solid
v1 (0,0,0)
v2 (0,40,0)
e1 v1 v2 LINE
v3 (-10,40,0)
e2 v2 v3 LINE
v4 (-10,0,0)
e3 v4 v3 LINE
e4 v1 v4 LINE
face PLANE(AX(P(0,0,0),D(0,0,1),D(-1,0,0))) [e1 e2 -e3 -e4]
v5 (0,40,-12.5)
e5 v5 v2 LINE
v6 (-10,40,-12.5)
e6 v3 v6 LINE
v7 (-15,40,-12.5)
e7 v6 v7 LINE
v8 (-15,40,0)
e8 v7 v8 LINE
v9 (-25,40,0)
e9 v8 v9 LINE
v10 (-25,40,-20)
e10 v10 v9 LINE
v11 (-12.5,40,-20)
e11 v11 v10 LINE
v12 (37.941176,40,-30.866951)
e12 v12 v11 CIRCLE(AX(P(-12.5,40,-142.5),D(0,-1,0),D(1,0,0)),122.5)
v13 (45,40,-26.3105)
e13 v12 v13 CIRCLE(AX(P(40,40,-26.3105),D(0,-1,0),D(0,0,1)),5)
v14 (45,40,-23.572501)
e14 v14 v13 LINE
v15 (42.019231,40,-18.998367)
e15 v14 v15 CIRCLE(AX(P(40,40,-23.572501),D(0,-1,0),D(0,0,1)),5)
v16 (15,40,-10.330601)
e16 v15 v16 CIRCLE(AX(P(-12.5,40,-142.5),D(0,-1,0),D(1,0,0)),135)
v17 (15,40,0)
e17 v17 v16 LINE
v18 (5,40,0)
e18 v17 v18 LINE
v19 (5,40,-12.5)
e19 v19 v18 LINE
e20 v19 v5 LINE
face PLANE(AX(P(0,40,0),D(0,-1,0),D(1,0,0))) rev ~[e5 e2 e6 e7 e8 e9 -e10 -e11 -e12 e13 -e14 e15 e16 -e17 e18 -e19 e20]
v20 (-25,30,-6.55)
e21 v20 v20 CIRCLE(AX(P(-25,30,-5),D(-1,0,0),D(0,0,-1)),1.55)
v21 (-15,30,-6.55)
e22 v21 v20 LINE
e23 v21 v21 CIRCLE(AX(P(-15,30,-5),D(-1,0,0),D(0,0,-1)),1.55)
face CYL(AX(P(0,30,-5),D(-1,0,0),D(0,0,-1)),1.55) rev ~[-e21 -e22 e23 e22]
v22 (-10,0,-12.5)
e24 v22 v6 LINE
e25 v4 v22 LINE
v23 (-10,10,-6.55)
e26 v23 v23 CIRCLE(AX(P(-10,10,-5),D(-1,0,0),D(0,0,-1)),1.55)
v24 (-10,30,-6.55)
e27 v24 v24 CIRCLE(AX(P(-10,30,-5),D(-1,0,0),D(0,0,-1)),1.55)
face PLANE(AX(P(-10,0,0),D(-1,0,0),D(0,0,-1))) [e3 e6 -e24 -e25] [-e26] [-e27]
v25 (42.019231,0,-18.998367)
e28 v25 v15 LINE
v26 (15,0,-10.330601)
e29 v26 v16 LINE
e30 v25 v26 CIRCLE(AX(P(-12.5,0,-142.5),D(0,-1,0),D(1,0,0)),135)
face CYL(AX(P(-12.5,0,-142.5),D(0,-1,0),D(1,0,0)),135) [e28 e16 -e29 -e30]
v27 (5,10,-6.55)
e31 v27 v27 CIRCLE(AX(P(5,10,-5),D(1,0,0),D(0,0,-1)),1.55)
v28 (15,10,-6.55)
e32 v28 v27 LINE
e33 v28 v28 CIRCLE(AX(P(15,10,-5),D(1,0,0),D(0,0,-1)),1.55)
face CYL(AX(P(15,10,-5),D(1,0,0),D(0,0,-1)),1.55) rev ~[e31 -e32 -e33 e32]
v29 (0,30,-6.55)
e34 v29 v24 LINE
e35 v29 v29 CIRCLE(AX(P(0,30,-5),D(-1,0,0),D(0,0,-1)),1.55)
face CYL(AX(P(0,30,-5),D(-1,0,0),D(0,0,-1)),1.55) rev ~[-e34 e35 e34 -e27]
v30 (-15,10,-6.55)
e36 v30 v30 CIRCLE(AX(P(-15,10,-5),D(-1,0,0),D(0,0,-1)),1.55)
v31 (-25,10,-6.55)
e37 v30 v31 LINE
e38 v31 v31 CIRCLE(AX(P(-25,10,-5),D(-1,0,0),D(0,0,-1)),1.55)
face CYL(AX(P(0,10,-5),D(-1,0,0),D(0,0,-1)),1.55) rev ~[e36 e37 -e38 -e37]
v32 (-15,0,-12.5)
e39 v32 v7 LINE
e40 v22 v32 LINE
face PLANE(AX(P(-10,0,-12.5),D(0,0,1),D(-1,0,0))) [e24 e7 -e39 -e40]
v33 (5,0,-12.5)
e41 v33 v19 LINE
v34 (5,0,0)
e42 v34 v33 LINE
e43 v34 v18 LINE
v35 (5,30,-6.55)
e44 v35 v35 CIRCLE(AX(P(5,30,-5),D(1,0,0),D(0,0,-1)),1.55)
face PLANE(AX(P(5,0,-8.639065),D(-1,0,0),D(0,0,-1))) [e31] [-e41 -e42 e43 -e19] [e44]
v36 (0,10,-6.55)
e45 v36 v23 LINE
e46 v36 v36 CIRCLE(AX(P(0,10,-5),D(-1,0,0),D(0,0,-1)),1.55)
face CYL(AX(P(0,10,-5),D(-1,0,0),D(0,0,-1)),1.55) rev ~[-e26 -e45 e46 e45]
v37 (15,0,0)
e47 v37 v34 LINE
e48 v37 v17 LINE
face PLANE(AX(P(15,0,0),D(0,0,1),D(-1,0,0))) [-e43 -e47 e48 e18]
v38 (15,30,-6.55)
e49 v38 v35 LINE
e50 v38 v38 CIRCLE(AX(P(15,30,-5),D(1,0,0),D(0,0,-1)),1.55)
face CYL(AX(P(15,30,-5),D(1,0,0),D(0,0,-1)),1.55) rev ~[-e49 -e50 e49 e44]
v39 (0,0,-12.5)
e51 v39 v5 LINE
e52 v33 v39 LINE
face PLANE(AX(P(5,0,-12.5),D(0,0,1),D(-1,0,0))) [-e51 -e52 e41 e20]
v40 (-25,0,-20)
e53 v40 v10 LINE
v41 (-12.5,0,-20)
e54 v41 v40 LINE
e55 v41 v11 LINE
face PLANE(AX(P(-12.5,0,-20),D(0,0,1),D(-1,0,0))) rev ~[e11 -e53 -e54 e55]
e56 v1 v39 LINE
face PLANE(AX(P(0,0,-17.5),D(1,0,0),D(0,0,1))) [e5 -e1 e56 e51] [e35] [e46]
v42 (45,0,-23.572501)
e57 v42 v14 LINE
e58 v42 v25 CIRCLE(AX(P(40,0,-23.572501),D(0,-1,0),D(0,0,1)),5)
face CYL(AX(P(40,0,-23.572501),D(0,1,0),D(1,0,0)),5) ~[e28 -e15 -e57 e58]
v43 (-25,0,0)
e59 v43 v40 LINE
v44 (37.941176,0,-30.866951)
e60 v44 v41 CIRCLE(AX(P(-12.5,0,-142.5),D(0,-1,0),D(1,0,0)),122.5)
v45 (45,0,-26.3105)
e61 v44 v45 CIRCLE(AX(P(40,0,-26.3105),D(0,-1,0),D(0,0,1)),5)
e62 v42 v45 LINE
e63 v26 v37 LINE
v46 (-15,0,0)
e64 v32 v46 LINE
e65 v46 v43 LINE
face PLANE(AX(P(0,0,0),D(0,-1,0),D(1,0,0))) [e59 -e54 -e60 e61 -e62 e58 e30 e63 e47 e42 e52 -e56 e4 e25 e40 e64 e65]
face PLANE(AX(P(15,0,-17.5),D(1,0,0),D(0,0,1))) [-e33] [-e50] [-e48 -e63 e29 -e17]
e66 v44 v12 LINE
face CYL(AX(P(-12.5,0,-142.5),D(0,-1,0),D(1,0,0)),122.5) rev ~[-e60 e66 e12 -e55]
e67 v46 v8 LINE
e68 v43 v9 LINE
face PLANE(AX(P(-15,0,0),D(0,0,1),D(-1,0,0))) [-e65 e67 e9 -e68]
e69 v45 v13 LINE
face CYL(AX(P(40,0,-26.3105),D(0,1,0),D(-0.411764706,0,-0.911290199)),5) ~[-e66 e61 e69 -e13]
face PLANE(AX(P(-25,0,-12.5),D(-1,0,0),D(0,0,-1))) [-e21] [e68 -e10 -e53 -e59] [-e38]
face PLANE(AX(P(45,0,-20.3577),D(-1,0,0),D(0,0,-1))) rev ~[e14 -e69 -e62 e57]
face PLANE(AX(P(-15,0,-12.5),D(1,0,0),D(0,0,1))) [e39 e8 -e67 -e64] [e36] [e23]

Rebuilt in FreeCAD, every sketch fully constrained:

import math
import FreeCAD as App
import Part
import Sketcher
from FreeCAD import Vector


def edges_at(feature, points):
    """Names of the edges that pass closest to the given points."""
    edges = feature.Shape.Edges
    near = lambda p: min(range(len(edges)), key=lambda i: edges[i].distToShape(Part.Vertex(*p))[0])
    return sorted({f"Edge{near(p) + 1}" for p in points})

doc = App.newDocument("Part")
params = doc.addObject("Spreadsheet::Sheet", "Params")
for row, (alias, value) in enumerate([
    ("sketch1_width", "10 mm"),
    ("sketch1_height", "12.5 mm"),
    ("pad1_length", "40 mm"),
    ("sketch2_diameter", "3.1 mm"),
    ("hole_diameter", "3.1 mm"),
    ("sketch3_height", "5 mm"),
    ("sketch3_width", "25 mm"),
    ("pad2_length", "40 mm"),
    ("sketch4_width", "10 mm"),
    ("sketch4_width2", "5 mm"),
    ("sketch4_height", "17.5 mm"),
    ("pad3_length", "40 mm"),
    ("sketch5_radius", "135 mm"),
    ("sketch5_radius2", "122.5 mm"),
    ("sketch5_width", "40 mm"),
    ("sketch5_width2", "12.5 mm"),
    ("sketch5_height", "2.5 mm"),
    ("pad4_length", "40 mm"),
    ("sketch6_diameter", "3.1 mm"),
    ("pocket1_length", "40 mm"),
    ("fillet_radius", "5 mm"),
    ("fillet2_radius", "5 mm"),
], start=1):
    params.set(f"A{row}", alias)
    params.set(f"B{row}", "=" + value)
    params.setAlias(f"B{row}", alias)

body = doc.addObject("PartDesign::Body", "Body")
body.AllowCompound = True

# Sketch on XZ plane
sketch1 = body.newObject("Sketcher::SketchObject", "Sketch")
sketch1.AttachmentSupport = (doc.getObject("XZ_Plane"), [""])
sketch1.MapMode = "FlatFace"
sketch1.addGeometry([
    Part.LineSegment(Vector(-10, 0, 0), Vector(0, 0, 0)),  # 0
    Part.LineSegment(Vector(0, 0, 0), Vector(0, -12, 0)),  # 1
    Part.LineSegment(Vector(0, -12, 0), Vector(-10, -12, 0)),  # 2
    Part.LineSegment(Vector(-10, -12, 0), Vector(-10, 0, 0)),  # 3
    Part.LineSegment(Vector(-25, 0, 0), Vector(-15, 0, 0)),  # 4
    Part.LineSegment(Vector(-15, 0, 0), Vector(-15, -12, 0)),  # 5
    Part.LineSegment(Vector(-15, -12, 0), Vector(-25, -12, 0)),  # 6
    Part.LineSegment(Vector(-25, -12, 0), Vector(-25, 0, 0)),  # 7
], False)
sketch1.addConstraint([
    Sketcher.Constraint("Coincident", 0, 2, 1, 1),
    Sketcher.Constraint("Coincident", 1, 2, 2, 1),
    Sketcher.Constraint("Coincident", 2, 2, 3, 1),
    Sketcher.Constraint("Coincident", 3, 2, 0, 1),
    Sketcher.Constraint("Coincident", 4, 2, 5, 1),
    Sketcher.Constraint("Coincident", 5, 2, 6, 1),
    Sketcher.Constraint("Coincident", 6, 2, 7, 1),
    Sketcher.Constraint("Coincident", 7, 2, 4, 1),
    Sketcher.Constraint("Horizontal", 0),
    Sketcher.Constraint("Vertical", 1),
    Sketcher.Constraint("Horizontal", 2),
    Sketcher.Constraint("Vertical", 3),
    Sketcher.Constraint("Horizontal", 4),
    Sketcher.Constraint("Vertical", 5),
    Sketcher.Constraint("Horizontal", 6),
    Sketcher.Constraint("Vertical", 7),
    Sketcher.Constraint("Coincident", 0, 2, -1, 1),
    Sketcher.Constraint("PointOnObject", 4, 2, -1),
    Sketcher.Constraint("Horizontal", 2, 2, 5, 2),
    Sketcher.Constraint("Equal", 2, 4),
    Sketcher.Constraint("DistanceX", 0, 1, 0, 2, 10.0),
    Sketcher.Constraint("DistanceY", 1, 2, 1, 1, 12.5),
    Sketcher.Constraint("DistanceX", 6, 2, -1, 1, 25.0),
])
sketch1.setExpression("Constraints[20]", "Params.sketch1_width")
sketch1.setExpression("Constraints[21]", "Params.sketch1_height")
pad1 = body.newObject("PartDesign::Pad", "Pad")
pad1.Profile = sketch1
pad1.setExpression("Length", "Params.pad1_length")
pad1.Reversed = True

# Sketch on YZ plane
sketch2 = body.newObject("Sketcher::SketchObject", "Sketch001")
sketch2.AttachmentSupport = (doc.getObject("YZ_Plane"), [""])
sketch2.MapMode = "FlatFace"
sketch2.addGeometry([
    Part.Circle(Vector(30, -5, 0), Vector(0, 0, 1), 1.6),
    Part.Circle(Vector(10, -5, 0), Vector(0, 0, 1), 1.6),
], False)
sketch2.addConstraint([
    Sketcher.Constraint("Equal", 0, 1),
    Sketcher.Constraint("Horizontal", 0, 3, 1, 3),
    Sketcher.Constraint("Diameter", 0, 3.1),
    Sketcher.Constraint("DistanceX", -1, 1, 0, 3, 30.0),
    Sketcher.Constraint("DistanceY", 0, 3, -1, 1, 5.0),
    Sketcher.Constraint("DistanceX", -1, 1, 1, 3, 10.0),
])
sketch2.setExpression("Constraints[2]", "Params.sketch2_diameter")
doc.recompute()
hole = body.newObject("PartDesign::Hole", "Hole")
hole.Profile = sketch2
hole.ThreadType = "None"
hole.setExpression("Diameter", "Params.hole_diameter")
hole.DepthType = "ThroughAll"

# Sketch on XZ plane
sketch3 = body.newObject("Sketcher::SketchObject", "Sketch002")
sketch3.AttachmentSupport = (doc.getObject("XZ_Plane"), [""])
sketch3.MapMode = "FlatFace"
sketch3.addGeometry([
    Part.LineSegment(Vector(0, -18, 0), Vector(0, -12, 0)),
    Part.LineSegment(Vector(0, -12, 0), Vector(-25, -12, 0)),
    Part.LineSegment(Vector(-25, -12, 0), Vector(-25, -18, 0)),
    Part.LineSegment(Vector(-25, -18, 0), Vector(0, -18, 0)),
], False)
sketch3.addConstraint([
    Sketcher.Constraint("Coincident", 0, 2, 1, 1),
    Sketcher.Constraint("Coincident", 1, 2, 2, 1),
    Sketcher.Constraint("Coincident", 2, 2, 3, 1),
    Sketcher.Constraint("Coincident", 3, 2, 0, 1),
    Sketcher.Constraint("Vertical", 0),
    Sketcher.Constraint("Horizontal", 1),
    Sketcher.Constraint("Vertical", 2),
    Sketcher.Constraint("Horizontal", 3),
    Sketcher.Constraint("PointOnObject", 0, 2, -2),
    Sketcher.Constraint("DistanceY", 0, 1, 0, 2, 5.0),
    Sketcher.Constraint("DistanceX", 1, 2, 1, 1, 25.0),
    Sketcher.Constraint("DistanceY", 0, 2, -1, 1, 12.5),
])
sketch3.setExpression("Constraints[9]", "Params.sketch3_height")
sketch3.setExpression("Constraints[10]", "Params.sketch3_width")
pad2 = body.newObject("PartDesign::Pad", "Pad001")
pad2.Profile = sketch3
pad2.setExpression("Length", "Params.pad2_length")
pad2.Reversed = True

# Sketch on XZ plane
sketch4 = body.newObject("Sketcher::SketchObject", "Sketch003")
sketch4.AttachmentSupport = (doc.getObject("XZ_Plane"), [""])
sketch4.MapMode = "FlatFace"
sketch4.addGeometry([
    Part.LineSegment(Vector(0, -12, 0), Vector(0, -18, 0)),  # 0
    Part.LineSegment(Vector(0, -18, 0), Vector(15, -18, 0)),  # 1
    Part.LineSegment(Vector(15, -18, 0), Vector(15, 0, 0)),  # 2
    Part.LineSegment(Vector(15, 0, 0), Vector(5, 0, 0)),  # 3
    Part.LineSegment(Vector(5, 0, 0), Vector(5, -12, 0)),  # 4
    Part.LineSegment(Vector(5, -12, 0), Vector(0, -12, 0)),  # 5
], False)
sketch4.addConstraint([
    Sketcher.Constraint("Coincident", 0, 2, 1, 1),
    Sketcher.Constraint("Coincident", 1, 2, 2, 1),
    Sketcher.Constraint("Coincident", 2, 2, 3, 1),
    Sketcher.Constraint("Coincident", 3, 2, 4, 1),
    Sketcher.Constraint("Coincident", 4, 2, 5, 1),
    Sketcher.Constraint("Coincident", 5, 2, 0, 1),
    Sketcher.Constraint("Vertical", 0),
    Sketcher.Constraint("Horizontal", 1),
    Sketcher.Constraint("Vertical", 2),
    Sketcher.Constraint("Horizontal", 3),
    Sketcher.Constraint("Vertical", 4),
    Sketcher.Constraint("Horizontal", 5),
    Sketcher.Constraint("PointOnObject", 0, 2, -2),
    Sketcher.Constraint("PointOnObject", 2, 2, -1),
    Sketcher.Constraint("Equal", 5, 0),
    Sketcher.Constraint("DistanceX", 3, 2, 3, 1, 10.0),
    Sketcher.Constraint("DistanceX", 5, 2, 5, 1, 5.0),
    Sketcher.Constraint("DistanceY", 2, 1, 2, 2, 17.5),
])
sketch4.setExpression("Constraints[15]", "Params.sketch4_width")
sketch4.setExpression("Constraints[16]", "Params.sketch4_width2")
sketch4.setExpression("Constraints[17]", "Params.sketch4_height")
pad3 = body.newObject("PartDesign::Pad", "Pad002")
pad3.Profile = sketch4
pad3.setExpression("Length", "Params.pad3_length")
pad3.Reversed = True

# Sketch on XZ plane
sketch5 = body.newObject("Sketcher::SketchObject", "Sketch004")
sketch5.AttachmentSupport = (doc.getObject("XZ_Plane"), [""])
sketch5.MapMode = "FlatFace"
sketch5.addGeometry([
    Part.LineSegment(Vector(-25, -17.5, 0), Vector(-25, -20, 0)),  # 0
    Part.LineSegment(Vector(-25, -20, 0), Vector(-12.5, -20, 0)),  # 1
    Part.ArcOfCircle(Part.Circle(Vector(-12.5, -142.5, 0), Vector(0, 0, 1), 122.5), math.radians(62), math.radians(90)),  # 2
    Part.LineSegment(Vector(45, -34.3, 0), Vector(45, -20.4, 0)),  # 3
    Part.ArcOfCircle(Part.Circle(Vector(-12.5, -142.5, 0), Vector(0, 0, 1), 135), math.radians(64.79), math.radians(78.25)),  # 4
    Part.LineSegment(Vector(15, -10.3, 0), Vector(15, -17.5, 0)),  # 5
    Part.LineSegment(Vector(15, -17.5, 0), Vector(-25, -17.5, 0)),  # 6
], False)
sketch5.addConstraint([
    Sketcher.Constraint("Coincident", 0, 2, 1, 1),
    Sketcher.Constraint("Tangent", 1, 2, 2, 2),
    Sketcher.Constraint("Coincident", 2, 1, 3, 1),
    Sketcher.Constraint("Coincident", 3, 2, 4, 1),
    Sketcher.Constraint("Coincident", 4, 2, 5, 1),
    Sketcher.Constraint("Coincident", 5, 2, 6, 1),
    Sketcher.Constraint("Coincident", 6, 2, 0, 1),
    Sketcher.Constraint("Vertical", 0),
    Sketcher.Constraint("Horizontal", 1),
    Sketcher.Constraint("Vertical", 3),
    Sketcher.Constraint("Vertical", 5),
    Sketcher.Constraint("Horizontal", 6),
    Sketcher.Constraint("Coincident", 4, 3, 2, 3),
    Sketcher.Constraint("Radius", 4, 135.0),
    Sketcher.Constraint("Radius", 2, 122.5),
    Sketcher.Constraint("DistanceX", 4, 2, 3, 2, 30.0),
    Sketcher.Constraint("DistanceY", 5, 2, -1, 1, 17.5),
    Sketcher.Constraint("DistanceX", 6, 2, 6, 1, 40.0),
    Sketcher.Constraint("DistanceX", 1, 1, 1, 2, 12.5),
    Sketcher.Constraint("DistanceY", 0, 2, 0, 1, 2.5),
    Sketcher.Constraint("DistanceX", 0, 2, -1, 1, 25.0),
])
sketch5.setExpression("Constraints[13]", "Params.sketch5_radius")
sketch5.setExpression("Constraints[14]", "Params.sketch5_radius2")
sketch5.setExpression("Constraints[17]", "Params.sketch5_width")
sketch5.setExpression("Constraints[18]", "Params.sketch5_width2")
sketch5.setExpression("Constraints[19]", "Params.sketch5_height")
pad4 = body.newObject("PartDesign::Pad", "Pad003")
pad4.Profile = sketch5
pad4.setExpression("Length", "Params.pad4_length")
pad4.Reversed = True

# Sketch on YZ plane
sketch6 = body.newObject("Sketcher::SketchObject", "Sketch005")
sketch6.AttachmentSupport = (doc.getObject("YZ_Plane"), [""])
sketch6.MapMode = "FlatFace"
sketch6.AttachmentOffset = App.Placement(Vector(0, 0, 15), App.Rotation())
sketch6.addGeometry([
    Part.Circle(Vector(30, -5, 0), Vector(0, 0, 1), 1.6),
    Part.Circle(Vector(10, -5, 0), Vector(0, 0, 1), 1.6),
], False)
sketch6.addConstraint([
    Sketcher.Constraint("Equal", 0, 1),
    Sketcher.Constraint("Horizontal", 0, 3, 1, 3),
    Sketcher.Constraint("Diameter", 0, 3.1),
    Sketcher.Constraint("DistanceX", -1, 1, 0, 3, 30.0),
    Sketcher.Constraint("DistanceY", 0, 3, -1, 1, 5.0),
    Sketcher.Constraint("DistanceX", -1, 1, 1, 3, 10.0),
])
sketch6.setExpression("Constraints[2]", "Params.sketch6_diameter")
pocket1 = body.newObject("PartDesign::Pocket", "Pocket")
pocket1.Profile = sketch6
pocket1.setExpression("Length", "Params.pocket1_length")
doc.recompute()

fillet = body.newObject("PartDesign::Fillet", "Fillet")
fillet.Base = (pocket1, edges_at(pocket1, [(45, 20, -34.334)]))
fillet.setExpression("Radius", "Params.fillet_radius")
doc.recompute()

fillet2 = body.newObject("PartDesign::Fillet", "Fillet001")
fillet2.Base = (fillet, edges_at(fillet, [(45, 20, -20.358)]))
fillet2.setExpression("Radius", "Params.fillet2_radius")

doc.recompute()
